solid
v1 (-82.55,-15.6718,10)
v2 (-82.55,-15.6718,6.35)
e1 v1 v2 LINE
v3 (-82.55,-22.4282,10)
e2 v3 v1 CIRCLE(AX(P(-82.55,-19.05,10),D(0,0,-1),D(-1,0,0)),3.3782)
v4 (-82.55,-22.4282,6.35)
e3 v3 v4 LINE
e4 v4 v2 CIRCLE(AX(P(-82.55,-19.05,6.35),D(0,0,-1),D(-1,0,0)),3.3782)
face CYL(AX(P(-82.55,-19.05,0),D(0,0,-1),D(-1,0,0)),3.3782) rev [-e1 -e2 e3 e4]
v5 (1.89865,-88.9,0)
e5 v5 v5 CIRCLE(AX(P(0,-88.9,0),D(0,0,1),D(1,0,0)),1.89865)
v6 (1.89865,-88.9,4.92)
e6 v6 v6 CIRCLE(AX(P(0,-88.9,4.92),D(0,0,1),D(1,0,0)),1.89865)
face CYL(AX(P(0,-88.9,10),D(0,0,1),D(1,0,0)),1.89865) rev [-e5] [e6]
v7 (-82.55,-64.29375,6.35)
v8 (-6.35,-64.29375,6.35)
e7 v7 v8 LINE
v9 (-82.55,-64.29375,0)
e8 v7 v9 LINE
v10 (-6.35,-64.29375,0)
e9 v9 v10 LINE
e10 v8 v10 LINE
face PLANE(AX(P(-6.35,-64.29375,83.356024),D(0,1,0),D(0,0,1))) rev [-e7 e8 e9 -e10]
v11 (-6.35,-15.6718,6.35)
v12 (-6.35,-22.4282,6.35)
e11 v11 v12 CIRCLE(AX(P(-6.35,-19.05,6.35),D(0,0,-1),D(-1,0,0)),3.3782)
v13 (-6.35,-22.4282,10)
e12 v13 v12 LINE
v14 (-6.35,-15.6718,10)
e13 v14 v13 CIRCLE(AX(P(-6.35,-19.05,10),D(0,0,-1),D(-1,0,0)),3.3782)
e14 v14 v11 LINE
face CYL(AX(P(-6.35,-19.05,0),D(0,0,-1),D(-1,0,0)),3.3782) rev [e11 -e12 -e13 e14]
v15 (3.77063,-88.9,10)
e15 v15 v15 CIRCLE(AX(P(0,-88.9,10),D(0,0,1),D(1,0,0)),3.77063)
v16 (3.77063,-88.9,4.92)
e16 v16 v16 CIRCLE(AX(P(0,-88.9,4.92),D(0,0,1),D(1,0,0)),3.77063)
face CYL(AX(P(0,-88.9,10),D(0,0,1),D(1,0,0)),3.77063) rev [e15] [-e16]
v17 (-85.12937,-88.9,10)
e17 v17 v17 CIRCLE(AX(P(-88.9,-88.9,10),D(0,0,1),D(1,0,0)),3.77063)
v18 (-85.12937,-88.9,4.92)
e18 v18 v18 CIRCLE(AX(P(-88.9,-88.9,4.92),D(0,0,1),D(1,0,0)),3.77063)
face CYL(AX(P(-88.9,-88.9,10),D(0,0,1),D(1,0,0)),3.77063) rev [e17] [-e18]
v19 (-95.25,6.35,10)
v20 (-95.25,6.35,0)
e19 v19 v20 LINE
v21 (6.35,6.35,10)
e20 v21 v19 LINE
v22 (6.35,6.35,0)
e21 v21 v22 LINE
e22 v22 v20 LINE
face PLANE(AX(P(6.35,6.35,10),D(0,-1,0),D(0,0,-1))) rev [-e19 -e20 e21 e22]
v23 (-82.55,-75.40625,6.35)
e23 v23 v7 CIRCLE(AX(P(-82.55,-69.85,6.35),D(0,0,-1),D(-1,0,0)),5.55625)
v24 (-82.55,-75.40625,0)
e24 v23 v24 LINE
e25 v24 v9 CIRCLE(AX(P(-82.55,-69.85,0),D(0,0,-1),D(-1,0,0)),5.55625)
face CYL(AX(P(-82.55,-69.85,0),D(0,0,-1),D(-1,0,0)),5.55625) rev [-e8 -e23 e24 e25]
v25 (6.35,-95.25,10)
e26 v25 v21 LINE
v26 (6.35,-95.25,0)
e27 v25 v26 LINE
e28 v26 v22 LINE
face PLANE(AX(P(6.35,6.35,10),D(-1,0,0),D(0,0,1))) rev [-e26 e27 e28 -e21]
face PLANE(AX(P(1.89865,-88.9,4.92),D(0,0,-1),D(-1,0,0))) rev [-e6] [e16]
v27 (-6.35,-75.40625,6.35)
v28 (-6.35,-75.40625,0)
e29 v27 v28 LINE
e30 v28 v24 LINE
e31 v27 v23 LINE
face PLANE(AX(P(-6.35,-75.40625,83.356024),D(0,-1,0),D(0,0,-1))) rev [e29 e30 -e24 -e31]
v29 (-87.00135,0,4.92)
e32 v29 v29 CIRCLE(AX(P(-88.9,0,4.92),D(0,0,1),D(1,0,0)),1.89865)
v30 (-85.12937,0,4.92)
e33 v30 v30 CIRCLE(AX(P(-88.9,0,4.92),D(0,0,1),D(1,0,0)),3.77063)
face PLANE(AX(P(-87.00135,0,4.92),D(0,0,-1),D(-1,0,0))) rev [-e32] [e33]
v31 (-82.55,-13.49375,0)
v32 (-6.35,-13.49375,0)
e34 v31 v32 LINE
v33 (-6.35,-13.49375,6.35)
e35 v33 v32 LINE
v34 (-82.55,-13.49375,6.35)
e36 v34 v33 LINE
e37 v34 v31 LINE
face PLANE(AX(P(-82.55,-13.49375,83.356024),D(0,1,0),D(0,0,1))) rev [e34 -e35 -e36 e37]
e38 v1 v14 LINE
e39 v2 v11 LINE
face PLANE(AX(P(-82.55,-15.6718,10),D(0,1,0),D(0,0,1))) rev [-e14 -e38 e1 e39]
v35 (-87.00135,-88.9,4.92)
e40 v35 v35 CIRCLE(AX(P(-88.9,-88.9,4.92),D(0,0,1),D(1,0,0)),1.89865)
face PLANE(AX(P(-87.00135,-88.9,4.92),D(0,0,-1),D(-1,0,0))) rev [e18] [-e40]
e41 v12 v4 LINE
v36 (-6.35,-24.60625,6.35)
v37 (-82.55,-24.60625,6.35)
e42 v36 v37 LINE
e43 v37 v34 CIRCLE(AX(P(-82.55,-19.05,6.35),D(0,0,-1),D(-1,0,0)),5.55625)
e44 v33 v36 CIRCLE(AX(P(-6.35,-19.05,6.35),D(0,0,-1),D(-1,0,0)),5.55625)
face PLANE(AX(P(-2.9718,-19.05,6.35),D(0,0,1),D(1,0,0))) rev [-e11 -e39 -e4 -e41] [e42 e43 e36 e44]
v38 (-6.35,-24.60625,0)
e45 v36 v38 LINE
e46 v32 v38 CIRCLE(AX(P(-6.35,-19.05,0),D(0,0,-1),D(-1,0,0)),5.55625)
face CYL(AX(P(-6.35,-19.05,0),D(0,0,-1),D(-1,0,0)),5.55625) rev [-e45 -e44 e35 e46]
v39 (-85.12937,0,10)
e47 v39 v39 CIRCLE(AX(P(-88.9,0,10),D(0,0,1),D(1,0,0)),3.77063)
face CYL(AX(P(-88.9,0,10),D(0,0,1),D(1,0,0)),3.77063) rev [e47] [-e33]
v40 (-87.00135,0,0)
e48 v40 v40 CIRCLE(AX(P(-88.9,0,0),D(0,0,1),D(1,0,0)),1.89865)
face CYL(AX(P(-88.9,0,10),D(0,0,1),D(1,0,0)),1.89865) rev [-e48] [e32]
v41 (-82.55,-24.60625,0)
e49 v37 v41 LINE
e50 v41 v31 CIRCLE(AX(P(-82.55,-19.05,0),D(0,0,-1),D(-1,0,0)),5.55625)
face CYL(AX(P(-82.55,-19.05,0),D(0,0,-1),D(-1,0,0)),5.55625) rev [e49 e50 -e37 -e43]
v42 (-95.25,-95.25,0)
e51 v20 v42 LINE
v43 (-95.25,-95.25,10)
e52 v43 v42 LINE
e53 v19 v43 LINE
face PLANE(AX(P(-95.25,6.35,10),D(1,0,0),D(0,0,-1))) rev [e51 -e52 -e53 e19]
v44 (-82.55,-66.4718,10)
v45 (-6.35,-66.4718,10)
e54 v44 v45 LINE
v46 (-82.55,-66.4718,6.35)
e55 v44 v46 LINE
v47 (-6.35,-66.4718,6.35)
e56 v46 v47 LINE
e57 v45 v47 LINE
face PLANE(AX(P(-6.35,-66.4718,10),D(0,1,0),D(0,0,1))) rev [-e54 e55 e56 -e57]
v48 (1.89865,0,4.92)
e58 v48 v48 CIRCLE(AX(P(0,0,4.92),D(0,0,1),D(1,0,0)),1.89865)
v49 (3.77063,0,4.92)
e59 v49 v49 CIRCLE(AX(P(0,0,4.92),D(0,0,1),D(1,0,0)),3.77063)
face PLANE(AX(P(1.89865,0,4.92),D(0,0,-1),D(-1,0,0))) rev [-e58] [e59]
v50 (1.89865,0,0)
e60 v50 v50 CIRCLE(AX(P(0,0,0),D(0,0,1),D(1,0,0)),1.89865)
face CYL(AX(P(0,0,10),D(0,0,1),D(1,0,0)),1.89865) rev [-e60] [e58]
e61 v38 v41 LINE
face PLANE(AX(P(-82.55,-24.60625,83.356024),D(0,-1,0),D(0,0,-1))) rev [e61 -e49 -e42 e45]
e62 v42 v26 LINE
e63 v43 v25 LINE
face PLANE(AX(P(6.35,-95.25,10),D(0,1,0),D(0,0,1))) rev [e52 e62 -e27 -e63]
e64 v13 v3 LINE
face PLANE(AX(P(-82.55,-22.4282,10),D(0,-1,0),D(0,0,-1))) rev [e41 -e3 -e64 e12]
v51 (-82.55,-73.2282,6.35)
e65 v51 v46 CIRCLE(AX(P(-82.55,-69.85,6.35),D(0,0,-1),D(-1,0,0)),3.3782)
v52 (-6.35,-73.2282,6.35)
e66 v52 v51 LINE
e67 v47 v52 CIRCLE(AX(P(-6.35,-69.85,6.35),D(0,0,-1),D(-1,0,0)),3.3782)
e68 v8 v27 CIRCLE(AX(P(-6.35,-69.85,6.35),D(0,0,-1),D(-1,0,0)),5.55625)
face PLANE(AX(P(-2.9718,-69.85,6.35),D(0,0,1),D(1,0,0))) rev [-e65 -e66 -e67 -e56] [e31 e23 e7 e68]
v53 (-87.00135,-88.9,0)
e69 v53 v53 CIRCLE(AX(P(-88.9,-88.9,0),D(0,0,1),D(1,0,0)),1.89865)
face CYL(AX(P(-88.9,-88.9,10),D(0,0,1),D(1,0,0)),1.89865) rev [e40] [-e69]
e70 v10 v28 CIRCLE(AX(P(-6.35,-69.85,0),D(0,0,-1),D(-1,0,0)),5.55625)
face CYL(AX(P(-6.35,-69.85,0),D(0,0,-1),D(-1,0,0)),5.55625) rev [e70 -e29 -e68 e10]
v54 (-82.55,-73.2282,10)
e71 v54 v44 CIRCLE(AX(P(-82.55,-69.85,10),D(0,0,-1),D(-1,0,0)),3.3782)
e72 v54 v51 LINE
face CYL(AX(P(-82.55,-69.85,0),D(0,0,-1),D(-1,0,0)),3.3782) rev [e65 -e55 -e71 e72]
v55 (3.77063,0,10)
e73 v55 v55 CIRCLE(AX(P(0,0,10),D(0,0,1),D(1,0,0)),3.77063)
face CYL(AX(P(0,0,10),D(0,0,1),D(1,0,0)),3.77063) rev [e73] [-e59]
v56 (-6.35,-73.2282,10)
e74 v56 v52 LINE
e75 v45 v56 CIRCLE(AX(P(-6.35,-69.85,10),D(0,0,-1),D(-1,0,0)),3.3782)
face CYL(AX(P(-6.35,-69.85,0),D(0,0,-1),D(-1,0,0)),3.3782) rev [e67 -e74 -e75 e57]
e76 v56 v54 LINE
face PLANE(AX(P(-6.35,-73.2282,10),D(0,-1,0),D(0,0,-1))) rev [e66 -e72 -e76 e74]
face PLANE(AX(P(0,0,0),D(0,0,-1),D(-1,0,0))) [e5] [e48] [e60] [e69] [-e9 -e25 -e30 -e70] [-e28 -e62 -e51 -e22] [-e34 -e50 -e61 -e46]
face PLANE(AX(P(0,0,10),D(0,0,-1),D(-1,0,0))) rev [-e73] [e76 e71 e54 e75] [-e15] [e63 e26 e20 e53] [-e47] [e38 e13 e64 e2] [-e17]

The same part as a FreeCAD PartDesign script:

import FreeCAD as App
import Part
import Sketcher

V = App.Vector
Q = App.Units.Quantity

doc = App.newDocument("Part")
body = doc.addObject("PartDesign::Body", "Body")

sketch1 = body.newObject("Sketcher::SketchObject", "Sketch")
sketch1.AttachmentSupport = (doc.getObject("XY_Plane"), [""])
sketch1.MapMode = "FlatFace"
sketch1.addGeometry([
    Part.LineSegment(V(-95, 6, 0), V(-95, -95, 0)),
    Part.LineSegment(V(-95, -95, 0), V(6, -95, 0)),
    Part.LineSegment(V(6, -95, 0), V(6, 6, 0)),
    Part.LineSegment(V(6, 6, 0), V(-95, 6, 0)),
], False)
sketch1.addConstraint([
    Sketcher.Constraint("Coincident", 0, 2, 1, 1),
    Sketcher.Constraint("Coincident", 1, 2, 2, 1),
    Sketcher.Constraint("Coincident", 2, 2, 3, 1),
    Sketcher.Constraint("Coincident", 3, 2, 0, 1),
    Sketcher.Constraint("Vertical", 0),
    Sketcher.Constraint("Horizontal", 1),
    Sketcher.Constraint("Vertical", 2),
    Sketcher.Constraint("Horizontal", 3),
    Sketcher.Constraint("Equal", 3, 0),
    Sketcher.Constraint("DistanceX", 1, 1, 1, 2, Q("4 in")),
    Sketcher.Constraint("DistanceX", 0, 2, -1, 1, Q("3.75 in")),
    Sketcher.Constraint("DistanceY", 0, 2, -1, 1, Q("3.75 in")),
])
pad1 = body.newObject("PartDesign::Pad", "Pad")
pad1.Profile = sketch1
pad1.Length = 10

sketch2 = body.newObject("Sketcher::SketchObject", "Sketch001")
sketch2.AttachmentSupport = (doc.getObject("XY_Plane"), [""])
sketch2.MapMode = "FlatFace"
sketch2.AttachmentOffset = App.Placement(V(0, 0, 10), App.Rotation())
sketch2.addGeometry([
    Part.Circle(V(0, 0, 0), V(0, 0, 1), 1.9),
    Part.Circle(V(0, -88.9, 0), V(0, 0, 1), 1.9),
    Part.Circle(V(-88.9, -88.9, 0), V(0, 0, 1), 1.9),
    Part.Circle(V(-88.9, 0, 0), V(0, 0, 1), 1.9),
], False)
sketch2.addConstraint([
    Sketcher.Constraint("Coincident", 0, 3, -1, 1),
    Sketcher.Constraint("Equal", 0, 1),
    Sketcher.Constraint("Equal", 1, 2),
    Sketcher.Constraint("Equal", 2, 3),
    Sketcher.Constraint("PointOnObject", 1, 3, -2),
    Sketcher.Constraint("PointOnObject", 3, 3, -1),
    Sketcher.Constraint("Horizontal", 1, 3, 2, 3),
    Sketcher.Constraint("Vertical", 2, 3, 3, 3),
    Sketcher.Constraint("Diameter", 0, Q("0.1495 in")),
    Sketcher.Constraint("DistanceY", 1, 3, -1, 1, Q("3.5 in")),
    Sketcher.Constraint("DistanceX", 2, 3, -1, 1, Q("3.5 in")),
])
doc.recompute()
hole = body.newObject("PartDesign::Hole", "Hole")
hole.Profile = sketch2
hole.ThreadType = "None"
hole.Diameter = Q("0.1495 in")
hole.DepthType = "ThroughAll"
hole.HoleCutType = "Counterbore"
hole.HoleCutDiameter = Q("0.2969 in")
hole.HoleCutDepth = Q("0.2 in")

sketch3 = body.newObject("Sketcher::SketchObject", "Sketch002")
sketch3.AttachmentSupport = (doc.getObject("XY_Plane"), [""])
sketch3.MapMode = "FlatFace"
sketch3.addGeometry([
    Part.Circle(V(-82.5, -19.1, 0), V(0, 0, 1), 3.4),
    Part.Circle(V(-82.5, -69.8, 0), V(0, 0, 1), 3.4),
    Part.Circle(V(-6.3, -69.8, 0), V(0, 0, 1), 3.4),
    Part.Circle(V(-6.3, -19.1, 0), V(0, 0, 1), 3.4),
], False)
sketch3.addConstraint([
    Sketcher.Constraint("Equal", 0, 1),
    Sketcher.Constraint("Equal", 1, 2),
    Sketcher.Constraint("Equal", 2, 3),
    Sketcher.Constraint("Horizontal", 1, 3, 2, 3),
    Sketcher.Constraint("Horizontal", 0, 3, 3, 3),
    Sketcher.Constraint("Vertical", 0, 3, 1, 3),
    Sketcher.Constraint("Vertical", 2, 3, 3, 3),
    Sketcher.Constraint("Diameter", 0, Q("0.266 in")),
    Sketcher.Constraint("DistanceY", 1, 3, 0, 3, Q("2 in")),
    Sketcher.Constraint("DistanceX", 1, 3, 2, 3, Q("3 in")),
    Sketcher.Constraint("DistanceX", 0, 3, -1, 1, Q("3.25 in")),
    Sketcher.Constraint("DistanceY", 0, 3, -1, 1, Q("0.75 in")),
])
doc.recompute()
hole2 = body.newObject("PartDesign::Hole", "Hole001")
hole2.Profile = sketch3
hole2.ThreadType = "None"
hole2.Diameter = Q("0.266 in")
hole2.DepthType = "ThroughAll"
hole2.HoleCutType = "Counterbore"
hole2.HoleCutDiameter = Q("0.4375 in")
hole2.HoleCutDepth = Q("0.25 in")
hole2.Reversed = True

sketch4 = body.newObject("Sketcher::SketchObject", "Sketch003")
sketch4.AttachmentSupport = (doc.getObject("XY_Plane"), [""])
sketch4.MapMode = "FlatFace"
sketch4.addGeometry([
    Part.LineSegment(V(-6, -13, 0), V(-6, -25, 0)),
    Part.LineSegment(V(-6, -25, 0), V(-83, -25, 0)),
    Part.LineSegment(V(-83, -25, 0), V(-83, -13, 0)),
    Part.LineSegment(V(-83, -13, 0), V(-6, -13, 0)),
    Part.LineSegment(V(-6, -64, 0), V(-6, -75, 0)),
    Part.LineSegment(V(-6, -75, 0), V(-83, -75, 0)),
    Part.LineSegment(V(-83, -75, 0), V(-83, -64, 0)),
    Part.LineSegment(V(-83, -64, 0), V(-6, -64, 0)),
], False)
sketch4.addConstraint([
    Sketcher.Constraint("Coincident", 0, 2, 1, 1),
    Sketcher.Constraint("Coincident", 1, 2, 2, 1),
    Sketcher.Constraint("Coincident", 2, 2, 3, 1),
    Sketcher.Constraint("Coincident", 3, 2, 0, 1),
    Sketcher.Constraint("Coincident", 4, 2, 5, 1),
    Sketcher.Constraint("Coincident", 5, 2, 6, 1),
    Sketcher.Constraint("Coincident", 6, 2, 7, 1),
    Sketcher.Constraint("Coincident", 7, 2, 4, 1),
    Sketcher.Constraint("Vertical", 0),
    Sketcher.Constraint("Horizontal", 1),
    Sketcher.Constraint("Vertical", 2),
    Sketcher.Constraint("Horizontal", 3),
    Sketcher.Constraint("Vertical", 4),
    Sketcher.Constraint("Horizontal", 5),
    Sketcher.Constraint("Vertical", 6),
    Sketcher.Constraint("Horizontal", 7),
    Sketcher.Constraint("Vertical", 3, 2, 4, 2),
    Sketcher.Constraint("Vertical", 2, 2, 5, 2),
    Sketcher.Constraint("Equal", 2, 4),
    Sketcher.Constraint("DistanceX", 1, 2, 1, 1, Q("3 in")),
    Sketcher.Constraint("DistanceY", 4, 2, 0, 2, Q("2 in")),
    Sketcher.Constraint("DistanceY", 0, 2, 0, 1, Q("0.4375 in")),
    Sketcher.Constraint("DistanceX", 0, 2, -1, 1, Q("0.25 in")),
    Sketcher.Constraint("DistanceY", 0, 2, -1, 1, Q("0.96875 in")),
])
pocket1 = body.newObject("PartDesign::Pocket", "Pocket")
pocket1.Profile = sketch4
pocket1.Length = Q("0.25 in")
pocket1.Reversed = True

sketch5 = body.newObject("Sketcher::SketchObject", "Sketch004")
sketch5.AttachmentSupport = (doc.getObject("XY_Plane"), [""])
sketch5.MapMode = "FlatFace"
sketch5.AttachmentOffset = App.Placement(V(0, 0, 0.25 * 25.4), App.Rotation())
sketch5.addGeometry([
    Part.LineSegment(V(-6, -16, 0), V(-6, -22, 0)),
    Part.LineSegment(V(-6, -22, 0), V(-83, -22, 0)),
    Part.LineSegment(V(-83, -22, 0), V(-83, -16, 0)),
    Part.LineSegment(V(-83, -16, 0), V(-6, -16, 0)),
    Part.LineSegment(V(-6, -66, 0), V(-6, -73, 0)),
    Part.LineSegment(V(-6, -73, 0), V(-83, -73, 0)),
    Part.LineSegment(V(-83, -73, 0), V(-83, -66, 0)),
    Part.LineSegment(V(-83, -66, 0), V(-6, -66, 0)),
], False)
sketch5.addConstraint([
    Sketcher.Constraint("Coincident", 0, 2, 1, 1),
    Sketcher.Constraint("Coincident", 1, 2, 2, 1),
    Sketcher.Constraint("Coincident", 2, 2, 3, 1),
    Sketcher.Constraint("Coincident", 3, 2, 0, 1),
    Sketcher.Constraint("Coincident", 4, 2, 5, 1),
    Sketcher.Constraint("Coincident", 5, 2, 6, 1),
    Sketcher.Constraint("Coincident", 6, 2, 7, 1),
    Sketcher.Constraint("Coincident", 7, 2, 4, 1),
    Sketcher.Constraint("Vertical", 0),
    Sketcher.Constraint("Horizontal", 1),
    Sketcher.Constraint("Vertical", 2),
    Sketcher.Constraint("Horizontal", 3),
    Sketcher.Constraint("Vertical", 4),
    Sketcher.Constraint("Horizontal", 5),
    Sketcher.Constraint("Vertical", 6),
    Sketcher.Constraint("Horizontal", 7),
    Sketcher.Constraint("Vertical", 3, 2, 4, 2),
    Sketcher.Constraint("Vertical", 2, 2, 5, 2),
    Sketcher.Constraint("Equal", 2, 4),
    Sketcher.Constraint("DistanceX", 1, 2, 1, 1, Q("3 in")),
    Sketcher.Constraint("DistanceY", 4, 2, 0, 2, Q("2 in")),
    Sketcher.Constraint("DistanceY", 0, 2, 0, 1, Q("0.266 in")),
    Sketcher.Constraint("DistanceX", 0, 2, -1, 1, Q("0.25 in")),
    Sketcher.Constraint("DistanceY", 0, 2, -1, 1, Q("0.883 in")),
])
pocket2 = body.newObject("PartDesign::Pocket", "Pocket001")
pocket2.Profile = sketch5
pocket2.Type = "ThroughAll"
pocket2.Reversed = True

doc.recompute()
